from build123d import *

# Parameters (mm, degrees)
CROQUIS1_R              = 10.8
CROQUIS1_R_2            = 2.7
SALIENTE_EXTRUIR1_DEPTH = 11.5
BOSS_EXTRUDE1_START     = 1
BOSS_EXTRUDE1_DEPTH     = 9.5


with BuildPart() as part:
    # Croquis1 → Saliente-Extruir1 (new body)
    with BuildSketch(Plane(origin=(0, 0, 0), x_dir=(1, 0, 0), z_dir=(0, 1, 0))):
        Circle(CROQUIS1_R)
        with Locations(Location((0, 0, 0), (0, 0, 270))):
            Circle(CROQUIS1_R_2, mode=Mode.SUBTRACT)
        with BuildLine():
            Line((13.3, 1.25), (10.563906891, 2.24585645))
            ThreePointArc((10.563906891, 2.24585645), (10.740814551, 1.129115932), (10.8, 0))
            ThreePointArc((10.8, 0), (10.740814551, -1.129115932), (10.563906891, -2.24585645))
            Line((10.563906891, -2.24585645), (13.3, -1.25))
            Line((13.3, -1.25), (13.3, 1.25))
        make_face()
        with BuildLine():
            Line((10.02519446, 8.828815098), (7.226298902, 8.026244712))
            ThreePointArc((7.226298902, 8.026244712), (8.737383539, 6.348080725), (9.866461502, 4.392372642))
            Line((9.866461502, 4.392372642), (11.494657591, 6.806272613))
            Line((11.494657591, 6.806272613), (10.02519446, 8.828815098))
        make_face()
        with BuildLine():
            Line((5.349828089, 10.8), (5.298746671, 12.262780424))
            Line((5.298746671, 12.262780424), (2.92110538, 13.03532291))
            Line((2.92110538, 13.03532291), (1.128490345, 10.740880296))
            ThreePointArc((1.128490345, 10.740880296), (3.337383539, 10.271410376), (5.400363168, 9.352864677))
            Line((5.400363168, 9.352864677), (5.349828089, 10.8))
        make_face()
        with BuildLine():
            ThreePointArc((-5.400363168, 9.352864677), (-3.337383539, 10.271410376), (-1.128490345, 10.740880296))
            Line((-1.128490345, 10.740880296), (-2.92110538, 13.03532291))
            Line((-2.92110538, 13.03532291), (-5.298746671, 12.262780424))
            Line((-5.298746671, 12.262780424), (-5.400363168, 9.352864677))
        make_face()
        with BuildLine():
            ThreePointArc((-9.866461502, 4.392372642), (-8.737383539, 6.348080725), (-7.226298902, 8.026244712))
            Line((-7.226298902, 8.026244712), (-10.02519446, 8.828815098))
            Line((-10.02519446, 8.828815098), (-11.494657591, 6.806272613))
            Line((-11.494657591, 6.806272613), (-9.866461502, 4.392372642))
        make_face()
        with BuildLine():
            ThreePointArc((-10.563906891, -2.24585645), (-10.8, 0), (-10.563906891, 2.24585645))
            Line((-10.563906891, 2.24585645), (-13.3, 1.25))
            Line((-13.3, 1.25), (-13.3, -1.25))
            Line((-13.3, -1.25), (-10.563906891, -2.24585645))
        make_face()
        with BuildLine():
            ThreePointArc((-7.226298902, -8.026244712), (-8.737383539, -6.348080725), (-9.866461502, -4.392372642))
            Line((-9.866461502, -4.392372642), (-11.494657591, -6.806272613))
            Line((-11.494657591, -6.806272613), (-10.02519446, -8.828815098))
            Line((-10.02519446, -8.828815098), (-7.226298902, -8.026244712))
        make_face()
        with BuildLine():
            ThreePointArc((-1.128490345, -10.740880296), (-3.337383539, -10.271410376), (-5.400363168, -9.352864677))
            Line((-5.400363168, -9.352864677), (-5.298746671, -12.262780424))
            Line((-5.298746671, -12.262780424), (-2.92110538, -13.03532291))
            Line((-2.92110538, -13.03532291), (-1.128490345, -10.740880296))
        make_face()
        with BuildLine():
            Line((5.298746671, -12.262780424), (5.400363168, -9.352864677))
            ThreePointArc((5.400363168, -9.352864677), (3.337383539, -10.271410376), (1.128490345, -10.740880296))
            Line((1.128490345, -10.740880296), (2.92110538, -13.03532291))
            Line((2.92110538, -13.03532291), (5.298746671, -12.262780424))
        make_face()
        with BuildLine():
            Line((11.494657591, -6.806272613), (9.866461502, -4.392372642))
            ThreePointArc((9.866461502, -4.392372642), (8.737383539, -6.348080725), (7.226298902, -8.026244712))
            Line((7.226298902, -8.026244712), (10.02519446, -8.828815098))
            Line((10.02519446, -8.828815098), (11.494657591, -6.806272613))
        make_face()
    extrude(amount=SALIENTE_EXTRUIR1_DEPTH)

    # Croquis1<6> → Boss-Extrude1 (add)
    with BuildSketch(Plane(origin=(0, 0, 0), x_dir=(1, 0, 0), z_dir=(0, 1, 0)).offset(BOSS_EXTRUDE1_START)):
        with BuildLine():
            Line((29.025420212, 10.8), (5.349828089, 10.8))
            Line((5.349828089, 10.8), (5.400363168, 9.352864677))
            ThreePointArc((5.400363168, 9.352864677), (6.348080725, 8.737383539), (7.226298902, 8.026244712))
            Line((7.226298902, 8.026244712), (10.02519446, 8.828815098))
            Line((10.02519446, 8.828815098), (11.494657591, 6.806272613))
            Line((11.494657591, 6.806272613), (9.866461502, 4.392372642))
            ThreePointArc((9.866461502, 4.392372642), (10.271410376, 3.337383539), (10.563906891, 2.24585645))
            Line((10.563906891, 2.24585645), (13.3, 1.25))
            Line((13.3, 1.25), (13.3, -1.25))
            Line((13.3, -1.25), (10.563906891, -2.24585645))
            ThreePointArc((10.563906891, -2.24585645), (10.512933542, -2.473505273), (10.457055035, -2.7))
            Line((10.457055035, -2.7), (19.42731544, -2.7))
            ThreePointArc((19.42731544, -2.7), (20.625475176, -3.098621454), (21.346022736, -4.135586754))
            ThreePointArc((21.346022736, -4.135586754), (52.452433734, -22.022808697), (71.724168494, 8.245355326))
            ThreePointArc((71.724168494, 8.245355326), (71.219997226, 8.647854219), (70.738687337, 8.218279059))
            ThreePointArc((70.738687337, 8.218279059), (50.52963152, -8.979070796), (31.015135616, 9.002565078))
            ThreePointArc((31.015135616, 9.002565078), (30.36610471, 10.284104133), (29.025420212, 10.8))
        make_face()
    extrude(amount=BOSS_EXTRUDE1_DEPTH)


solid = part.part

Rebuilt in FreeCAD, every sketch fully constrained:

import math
import FreeCAD as App
import Part
import Sketcher
Q = App.Units.Quantity

doc = App.newDocument("Part")
body = doc.addObject("PartDesign::Body", "Body")

# Sketch on XZ plane
sketch1 = body.newObject("Sketcher::SketchObject", "Sketch")
sketch1.AttachmentSupport = (doc.getObject("XZ_Plane"), [""])
sketch1.MapMode = "FlatFace"
sketch1.addGeometry([
    Part.ArcOfCircle(Part.Circle(App.Vector(0, 0, 0), App.Vector(0, 0, 1), 10.8), math.radians(-24), math.radians(-12)),  # 0
    Part.LineSegment(App.Vector(9.9, -4.4, 0), App.Vector(11.5, -6.8, 0)),  # 1
    Part.LineSegment(App.Vector(11.5, -6.8, 0), App.Vector(10, -8.8, 0)),  # 2
    Part.LineSegment(App.Vector(10, -8.8, 0), App.Vector(7.2, -8, 0)),  # 3
    Part.ArcOfCircle(Part.Circle(App.Vector(0, 0, 0), App.Vector(0, 0, 1), 10.8), math.radians(-60), math.radians(-48)),  # 4
    Part.LineSegment(App.Vector(5.4, -9.4, 0), App.Vector(5.3, -10.8, 0)),  # 5
    Part.LineSegment(App.Vector(5.3, -10.8, 0), App.Vector(5.3, -12.3, 0)),  # 6
    Part.LineSegment(App.Vector(5.3, -12.3, 0), App.Vector(2.9, -13, 0)),  # 7
    Part.LineSegment(App.Vector(2.9, -13, 0), App.Vector(1.1, -10.7, 0)),  # 8
    Part.ArcOfCircle(Part.Circle(App.Vector(0, 0, 0), App.Vector(0, 0, 1), 10.8), math.radians(-96), math.radians(-84)),  # 9
    Part.LineSegment(App.Vector(-1.1, -10.7, 0), App.Vector(-2.9, -13, 0)),  # 10
    Part.LineSegment(App.Vector(-2.9, -13, 0), App.Vector(-5.3, -12.3, 0)),  # 11
    Part.LineSegment(App.Vector(-5.3, -12.3, 0), App.Vector(-5.4, -9.4, 0)),  # 12
    Part.ArcOfCircle(Part.Circle(App.Vector(0, 0, 0), App.Vector(0, 0, 1), 10.8), math.radians(-132), math.radians(-120)),  # 13
    Part.LineSegment(App.Vector(-7.2, -8, 0), App.Vector(-10, -8.8, 0)),  # 14
    Part.LineSegment(App.Vector(-10, -8.8, 0), App.Vector(-11.5, -6.8, 0)),  # 15
    Part.LineSegment(App.Vector(-11.5, -6.8, 0), App.Vector(-9.9, -4.4, 0)),  # 16
    Part.ArcOfCircle(Part.Circle(App.Vector(0, 0, 0), App.Vector(0, 0, 1), 10.8), math.radians(-168), math.radians(-156)),  # 17
    Part.LineSegment(App.Vector(-10.6, -2.2, 0), App.Vector(-13.3, -1.2, 0)),  # 18
    Part.LineSegment(App.Vector(-13.3, -1.2, 0), App.Vector(-13.3, 1.2, 0)),  # 19
    Part.LineSegment(App.Vector(-13.3, 1.2, 0), App.Vector(-10.6, 2.2, 0)),  # 20
    Part.ArcOfCircle(Part.Circle(App.Vector(0, 0, 0), App.Vector(0, 0, 1), 10.8), math.radians(156), math.radians(168)),  # 21
    Part.LineSegment(App.Vector(-9.9, 4.4, 0), App.Vector(-11.5, 6.8, 0)),  # 22
    Part.LineSegment(App.Vector(-11.5, 6.8, 0), App.Vector(-10, 8.8, 0)),  # 23
    Part.LineSegment(App.Vector(-10, 8.8, 0), App.Vector(-7.2, 8, 0)),  # 24
    Part.ArcOfCircle(Part.Circle(App.Vector(0, 0, 0), App.Vector(0, 0, 1), 10.8), math.radians(120), math.radians(132)),  # 25
    Part.LineSegment(App.Vector(-5.4, 9.4, 0), App.Vector(-5.3, 12.3, 0)),  # 26
    Part.LineSegment(App.Vector(-5.3, 12.3, 0), App.Vector(-2.9, 13, 0)),  # 27
    Part.LineSegment(App.Vector(-2.9, 13, 0), App.Vector(-1.1, 10.7, 0)),  # 28
    Part.ArcOfCircle(Part.Circle(App.Vector(0, 0, 0), App.Vector(0, 0, 1), 10.8), math.radians(84), math.radians(96)),  # 29
    Part.LineSegment(App.Vector(1.1, 10.7, 0), App.Vector(2.9, 13, 0)),  # 30
    Part.LineSegment(App.Vector(2.9, 13, 0), App.Vector(5.3, 12.3, 0)),  # 31
    Part.LineSegment(App.Vector(5.3, 12.3, 0), App.Vector(5.4, 9.4, 0)),  # 32
    Part.ArcOfCircle(Part.Circle(App.Vector(0, 0, 0), App.Vector(0, 0, 1), 10.8), math.radians(48), math.radians(60)),  # 33
    Part.LineSegment(App.Vector(7.2, 8, 0), App.Vector(10, 8.8, 0)),  # 34
    Part.LineSegment(App.Vector(10, 8.8, 0), App.Vector(11.5, 6.8, 0)),  # 35
    Part.LineSegment(App.Vector(11.5, 6.8, 0), App.Vector(9.9, 4.4, 0)),  # 36
    Part.ArcOfCircle(Part.Circle(App.Vector(0, 0, 0), App.Vector(0, 0, 1), 10.8), math.radians(12), math.radians(24)),  # 37
    Part.LineSegment(App.Vector(10.6, 2.2, 0), App.Vector(13.3, 1.2, 0)),  # 38
    Part.LineSegment(App.Vector(13.3, 1.2, 0), App.Vector(13.3, -1.2, 0)),  # 39
    Part.LineSegment(App.Vector(13.3, -1.2, 0), App.Vector(10.6, -2.2, 0)),  # 40
    Part.Circle(App.Vector(0, 0, 0), App.Vector(0, 0, 1), 2.7),  # 41
], False)
sketch1.addConstraint([
    Sketcher.Constraint("Coincident", 0, 1, 1, 1),
    Sketcher.Constraint("Coincident", 1, 2, 2, 1),
    Sketcher.Constraint("Coincident", 2, 2, 3, 1),
    Sketcher.Constraint("Coincident", 3, 2, 4, 2),
    Sketcher.Constraint("Coincident", 4, 1, 5, 1),
    Sketcher.Constraint("Coincident", 5, 2, 6, 1),
    Sketcher.Constraint("Coincident", 6, 2, 7, 1),
    Sketcher.Constraint("Coincident", 7, 2, 8, 1),
    Sketcher.Constraint("Coincident", 8, 2, 9, 2),
    Sketcher.Constraint("Coincident", 9, 1, 10, 1),
    Sketcher.Constraint("Coincident", 10, 2, 11, 1),
    Sketcher.Constraint("Coincident", 11, 2, 12, 1),
    Sketcher.Constraint("Coincident", 12, 2, 13, 2),
    Sketcher.Constraint("Coincident", 13, 1, 14, 1),
    Sketcher.Constraint("Coincident", 14, 2, 15, 1),
    Sketcher.Constraint("Coincident", 15, 2, 16, 1),
    Sketcher.Constraint("Coincident", 16, 2, 17, 2),
    Sketcher.Constraint("Coincident", 17, 1, 18, 1),
    Sketcher.Constraint("Coincident", 18, 2, 19, 1),
    Sketcher.Constraint("Coincident", 19, 2, 20, 1),
    Sketcher.Constraint("Coincident", 20, 2, 21, 2),
    Sketcher.Constraint("Coincident", 21, 1, 22, 1),
    Sketcher.Constraint("Coincident", 22, 2, 23, 1),
    Sketcher.Constraint("Coincident", 23, 2, 24, 1),
    Sketcher.Constraint("Coincident", 24, 2, 25, 2),
    Sketcher.Constraint("Coincident", 25, 1, 26, 1),
    Sketcher.Constraint("Coincident", 26, 2, 27, 1),
    Sketcher.Constraint("Coincident", 27, 2, 28, 1),
    Sketcher.Constraint("Coincident", 28, 2, 29, 2),
    Sketcher.Constraint("Coincident", 29, 1, 30, 1),
    Sketcher.Constraint("Coincident", 30, 2, 31, 1),
    Sketcher.Constraint("Coincident", 31, 2, 32, 1),
    Sketcher.Constraint("Coincident", 32, 2, 33, 2),
    Sketcher.Constraint("Coincident", 33, 1, 34, 1),
    Sketcher.Constraint("Coincident", 34, 2, 35, 1),
    Sketcher.Constraint("Coincident", 35, 2, 36, 1),
    Sketcher.Constraint("Coincident", 36, 2, 37, 2),
    Sketcher.Constraint("Coincident", 37, 1, 38, 1),
    Sketcher.Constraint("Coincident", 38, 2, 39, 1),
    Sketcher.Constraint("Coincident", 39, 2, 40, 1),
    Sketcher.Constraint("Coincident", 40, 2, 0, 2),
    Sketcher.Constraint("Vertical", 19),
    Sketcher.Constraint("Vertical", 39),
    Sketcher.Constraint("Coincident", 0, 3, -1, 1),
    Sketcher.Constraint("Coincident", 4, 3, -1, 1),
    Sketcher.Constraint("Coincident", 9, 3, -1, 1),
    Sketcher.Constraint("Coincident", 13, 3, -1, 1),
    Sketcher.Constraint("Coincident", 17, 3, -1, 1),
    Sketcher.Constraint("Coincident", 21, 3, -1, 1),
    Sketcher.Constraint("Coincident", 25, 3, -1, 1),
    Sketcher.Constraint("Coincident", 29, 3, -1, 1),
    Sketcher.Constraint("Coincident", 33, 3, -1, 1),
    Sketcher.Constraint("Coincident", 37, 3, -1, 1),
    Sketcher.Constraint("Coincident", 41, 3, -1, 1),
    Sketcher.Constraint("Equal", 0, 4),
    Sketcher.Constraint("Equal", 4, 9),
    Sketcher.Constraint("Equal", 9, 13),
    Sketcher.Constraint("Equal", 13, 17),
    Sketcher.Constraint("Equal", 17, 21),
    Sketcher.Constraint("Equal", 21, 25),
    Sketcher.Constraint("Equal", 25, 29),
    Sketcher.Constraint("Equal", 29, 33),
    Sketcher.Constraint("Equal", 33, 37),
    Sketcher.Constraint("Symmetric", 1, 2, 22, 2, -1, 1),
    Sketcher.Constraint("Symmetric", 2, 2, 23, 2, -1, 1),
    Sketcher.Constraint("Symmetric", 6, 2, 26, 2, -1, 1),
    Sketcher.Constraint("Symmetric", 7, 2, 27, 2, -1, 1),
    Sketcher.Constraint("Symmetric", 10, 2, 30, 2, -1, 1),
    Sketcher.Constraint("Symmetric", 11, 2, 31, 2, -1, 1),
    Sketcher.Constraint("Symmetric", 14, 2, 34, 2, -1, 1),
    Sketcher.Constraint("Symmetric", 15, 2, 35, 2, -1, 1),
    Sketcher.Constraint("Symmetric", 18, 2, 38, 2, -1, 1),
    Sketcher.Constraint("Symmetric", 7, 2, 10, 2, -2),
    Sketcher.Constraint("Symmetric", 6, 2, 11, 2, -2),
    Sketcher.Constraint("Symmetric", 2, 2, 14, 2, -2),
    Sketcher.Constraint("Symmetric", 1, 2, 15, 2, -2),
    Sketcher.Constraint("Parallel", 5, 6),
    Sketcher.Constraint("Parallel", 1, 22),
    Sketcher.Constraint("Parallel", 3, 24),
    Sketcher.Constraint("Parallel", 6, 26),
    Sketcher.Constraint("Parallel", 8, 28),
    Sketcher.Constraint("Parallel", 10, 30),
    Sketcher.Constraint("Parallel", 12, 32),
    Sketcher.Constraint("Parallel", 14, 34),
    Sketcher.Constraint("Parallel", 16, 36),
    Sketcher.Constraint("Parallel", 18, 38),
    Sketcher.Constraint("Parallel", 20, 40),
    Sketcher.Constraint("Horizontal", 8, 2, 9, 1),
    Sketcher.Constraint("Horizontal", 4, 1, 12, 2),
    Sketcher.Constraint("Horizontal", 3, 2, 13, 1),
    Sketcher.Constraint("Horizontal", 0, 1, 16, 2),
    Sketcher.Constraint("Horizontal", 20, 2, 37, 1),
    Sketcher.Constraint("Horizontal", 19, 2, 38, 2),
    Sketcher.Constraint("Horizontal", 18, 2, 39, 2),
    Sketcher.Constraint("Equal", 1, 3),
    Sketcher.Constraint("Equal", 2, 7),
    Sketcher.Constraint("Equal", 3, 8),
    Sketcher.Constraint("Equal", 10, 12),
    Sketcher.Constraint("Equal", 16, 18),
    Sketcher.Constraint("Diameter", 41, 5.4),
    Sketcher.Constraint("Radius", 0, 10.8),
    Sketcher.Constraint("Angle", 1, Q("-56 deg")),
    Sketcher.Constraint("Angle", 2, Q("-126 deg")),
    Sketcher.Constraint("Angle", 3, Q("164 deg")),
    Sketcher.Constraint("Angle", 5, Q("-92 deg")),
    Sketcher.Constraint("Angle", 7, Q("-162 deg")),
    Sketcher.Constraint("Angle", 8, Q("128 deg")),
    Sketcher.Constraint("Angle", 18, Q("160 deg")),
    Sketcher.Constraint("DistanceY", 19, 1, 19, 2, 2.5),
    Sketcher.Constraint("Distance", 2, 2.5),
    Sketcher.Constraint("DistanceY", 5, 2, -1, 1, 10.8),
    Sketcher.Constraint("DistanceX", 18, 2, -1, 1, 13.3),
])
pad1 = body.newObject("PartDesign::Pad", "Pad")
pad1.Profile = sketch1
pad1.Length = 11.5
pad1.Reversed = True

# Sketch on XZ plane
sketch2 = body.newObject("Sketcher::SketchObject", "Sketch001")
sketch2.AttachmentSupport = (doc.getObject("XZ_Plane"), [""])
sketch2.MapMode = "FlatFace"
sketch2.AttachmentOffset = App.Placement(App.Vector(0, 0, -1), App.Rotation())
sketch2.addGeometry([
    Part.LineSegment(App.Vector(29.03, -10.8, 0), App.Vector(5.35, -10.8, 0)),  # 0
    Part.LineSegment(App.Vector(5.35, -10.8, 0), App.Vector(5.4, -9.35, 0)),  # 1
    Part.ArcOfCircle(Part.Circle(App.Vector(0, 0, 0), App.Vector(0, 0, 1), 10.8), math.radians(-60), math.radians(-48)),  # 2
    Part.LineSegment(App.Vector(7.23, -8.03, 0), App.Vector(10.03, -8.83, 0)),  # 3
    Part.LineSegment(App.Vector(10.03, -8.83, 0), App.Vector(11.49, -6.81, 0)),  # 4
    Part.LineSegment(App.Vector(11.49, -6.81, 0), App.Vector(9.87, -4.39, 0)),  # 5
    Part.ArcOfCircle(Part.Circle(App.Vector(0, 0, 0), App.Vector(0, 0, 1), 10.8), math.radians(-24), math.radians(-12)),  # 6
    Part.LineSegment(App.Vector(10.56, -2.25, 0), App.Vector(13.3, -1.25, 0)),  # 7
    Part.LineSegment(App.Vector(13.3, -1.25, 0), App.Vector(13.3, 1.25, 0)),  # 8
    Part.LineSegment(App.Vector(13.3, 1.25, 0), App.Vector(10.56, 2.25, 0)),  # 9
    Part.ArcOfCircle(Part.Circle(App.Vector(0, 0, 0), App.Vector(0, 0, 1), 10.8), math.radians(12), math.radians(14.48)),  # 10
    Part.LineSegment(App.Vector(10.46, 2.7, 0), App.Vector(19.43, 2.7, 0)),  # 11
    Part.ArcOfCircle(Part.Circle(App.Vector(19.43, 4.7, 0), App.Vector(0, 0, 1), 2), math.radians(-90), math.radians(-16)),  # 12
    Part.ArcOfCircle(Part.Circle(App.Vector(46.26, -3.19, 0), App.Vector(0, 0, 1), 25.97), math.radians(-11), math.radians(164)),  # 13
    Part.ArcOfCircle(Part.Circle(App.Vector(71.23, -8.15, 0), App.Vector(0, 0, 1), 0.5), math.radians(-172), math.radians(-11)),  # 14
    Part.ArcOfCircle(Part.Circle(App.Vector(50.92, -11.03, 0), App.Vector(0, 0, 1), 20.01), math.radians(8), math.radians(174)),  # 15
    Part.ArcOfCircle(Part.Circle(App.Vector(29.03, -8.8, 0), App.Vector(0, 0, 1), 2), math.radians(-90), math.radians(-6)),  # 16
], False)
sketch2.addConstraint([
    Sketcher.Constraint("Coincident", 0, 2, 1, 1),
    Sketcher.Constraint("Coincident", 1, 2, 2, 1),
    Sketcher.Constraint("Coincident", 2, 2, 3, 1),
    Sketcher.Constraint("Coincident", 3, 2, 4, 1),
    Sketcher.Constraint("Coincident", 4, 2, 5, 1),
    Sketcher.Constraint("Coincident", 5, 2, 6, 1),
    Sketcher.Constraint("Coincident", 6, 2, 7, 1),
    Sketcher.Constraint("Coincident", 7, 2, 8, 1),
    Sketcher.Constraint("Coincident", 8, 2, 9, 1),
    Sketcher.Constraint("Coincident", 9, 2, 10, 1),
    Sketcher.Constraint("Coincident", 10, 2, 11, 1),
    Sketcher.Constraint("Tangent", 11, 2, 12, 1),
    Sketcher.Constraint("Tangent", 12, 2, 13, 2),
    Sketcher.Constraint("Tangent", 13, 1, 14, 2),
    Sketcher.Constraint("Tangent", 14, 1, 15, 1),
    Sketcher.Constraint("Tangent", 15, 2, 16, 2),
    Sketcher.Constraint("Tangent", 16, 1, 0, 1),
    Sketcher.Constraint("Horizontal", 0),
    Sketcher.Constraint("Vertical", 8),
    Sketcher.Constraint("Horizontal", 11),
    Sketcher.Constraint("Coincident", 2, 3, -1, 1),
    Sketcher.Constraint("Coincident", 6, 3, -1, 1),
    Sketcher.Constraint("Coincident", 10, 3, -1, 1),
    Sketcher.Constraint("Equal", 2, 6),
    Sketcher.Constraint("Equal", 6, 10),
    Sketcher.Constraint("Equal", 12, 16),
    Sketcher.Constraint("Vertical", 6, 2, 9, 2),
    Sketcher.Constraint("Equal", 3, 5),
    Sketcher.Constraint("Equal", 5, 7),
    Sketcher.Constraint("Equal", 7, 9),
    Sketcher.Constraint("Radius", 12, 2.0),
    Sketcher.Constraint("Radius", 2, 10.8),
    Sketcher.Constraint("Radius", 14, 0.5),
    Sketcher.Constraint("Angle", 1, Q("88 deg")),
    Sketcher.Constraint("Angle", 3, Q("-16 deg")),
    Sketcher.Constraint("Angle", 4, Q("54 deg")),
    Sketcher.Constraint("Angle", 5, Q("124 deg")),
    Sketcher.Constraint("Angle", 7, Q("20 deg")),
    Sketcher.Constraint("DistanceY", 8, 1, 8, 2, 2.5),
    Sketcher.Constraint("Distance", 4, 2.5),
    Sketcher.Constraint("DistanceY", -1, 1, 12, 3, 4.7),
    Sketcher.Constraint("DistanceY", 16, 3, -1, 1, 8.8),
    Sketcher.Constraint("DistanceX", -1, 1, 7, 2, 13.3),
    Sketcher.Constraint("Radius", 13, 25.96502),
    Sketcher.Constraint("Radius", 15, 20.012447),
    Sketcher.Constraint("DistanceX", 11, 1, 11, 2, 8.97026),
    Sketcher.Constraint("DistanceX", 1, 2, 5, 2, 4.466098),
    Sketcher.Constraint("DistanceX", 0, 2, 0, 1, 23.675592),
    Sketcher.Constraint("DistanceX", -1, 1, 13, 3, 46.255659),
    Sketcher.Constraint("DistanceX", -1, 1, 14, 3, 71.23373),
])
pad2 = body.newObject("PartDesign::Pad", "Pad001")
pad2.Profile = sketch2
pad2.Length = 9.5
pad2.Reversed = True

doc.recompute()
